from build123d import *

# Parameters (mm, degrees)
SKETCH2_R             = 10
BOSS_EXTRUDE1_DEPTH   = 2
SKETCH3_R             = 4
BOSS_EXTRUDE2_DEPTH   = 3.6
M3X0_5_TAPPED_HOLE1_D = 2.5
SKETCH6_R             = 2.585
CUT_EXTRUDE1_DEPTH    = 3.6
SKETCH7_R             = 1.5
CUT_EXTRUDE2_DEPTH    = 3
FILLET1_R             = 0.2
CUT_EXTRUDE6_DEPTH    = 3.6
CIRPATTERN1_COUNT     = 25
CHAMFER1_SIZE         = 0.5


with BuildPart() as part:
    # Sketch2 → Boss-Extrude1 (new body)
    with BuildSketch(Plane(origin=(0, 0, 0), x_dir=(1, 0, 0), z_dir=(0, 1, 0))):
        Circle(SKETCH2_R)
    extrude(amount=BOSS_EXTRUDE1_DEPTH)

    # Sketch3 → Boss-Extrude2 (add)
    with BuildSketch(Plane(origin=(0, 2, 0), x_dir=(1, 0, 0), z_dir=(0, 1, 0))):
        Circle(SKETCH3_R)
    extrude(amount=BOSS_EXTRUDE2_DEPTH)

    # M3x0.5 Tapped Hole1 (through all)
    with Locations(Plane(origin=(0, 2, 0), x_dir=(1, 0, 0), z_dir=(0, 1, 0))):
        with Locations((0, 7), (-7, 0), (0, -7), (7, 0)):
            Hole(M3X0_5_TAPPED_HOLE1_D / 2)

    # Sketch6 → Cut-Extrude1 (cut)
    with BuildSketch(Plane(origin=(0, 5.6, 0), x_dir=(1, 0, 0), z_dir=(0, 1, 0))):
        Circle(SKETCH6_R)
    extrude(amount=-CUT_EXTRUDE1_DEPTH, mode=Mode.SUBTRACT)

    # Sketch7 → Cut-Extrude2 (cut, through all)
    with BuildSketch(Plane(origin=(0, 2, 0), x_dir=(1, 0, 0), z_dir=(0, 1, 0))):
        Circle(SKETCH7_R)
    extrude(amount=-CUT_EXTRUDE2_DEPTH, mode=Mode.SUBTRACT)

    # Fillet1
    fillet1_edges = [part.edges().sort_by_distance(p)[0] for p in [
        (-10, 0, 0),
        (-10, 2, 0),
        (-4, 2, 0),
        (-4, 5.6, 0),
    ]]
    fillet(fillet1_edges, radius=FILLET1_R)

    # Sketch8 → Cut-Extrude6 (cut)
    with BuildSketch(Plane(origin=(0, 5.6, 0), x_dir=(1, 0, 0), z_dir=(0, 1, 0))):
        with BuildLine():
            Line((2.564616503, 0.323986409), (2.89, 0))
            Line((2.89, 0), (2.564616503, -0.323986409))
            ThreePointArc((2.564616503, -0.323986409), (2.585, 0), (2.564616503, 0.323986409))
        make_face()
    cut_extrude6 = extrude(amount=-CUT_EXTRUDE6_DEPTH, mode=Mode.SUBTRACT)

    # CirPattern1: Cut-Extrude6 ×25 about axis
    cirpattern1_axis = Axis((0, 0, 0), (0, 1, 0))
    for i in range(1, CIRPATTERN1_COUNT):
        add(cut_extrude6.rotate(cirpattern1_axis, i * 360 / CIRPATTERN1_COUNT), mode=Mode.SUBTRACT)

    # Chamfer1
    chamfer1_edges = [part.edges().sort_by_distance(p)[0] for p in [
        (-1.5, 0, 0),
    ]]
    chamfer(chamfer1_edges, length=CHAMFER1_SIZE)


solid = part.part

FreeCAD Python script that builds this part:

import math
import FreeCAD as App
import Part
import Sketcher

V = App.Vector
Q = App.Units.Quantity


def edges_at(feature, points):
    """Names of the edges that pass closest to the given points."""
    edges = feature.Shape.Edges
    near = lambda p: min(range(len(edges)), key=lambda i: edges[i].distToShape(Part.Vertex(*p))[0])
    return sorted({f"Edge{near(p) + 1}" for p in points})

doc = App.newDocument("Part")
body = doc.addObject("PartDesign::Body", "Body")

# Sketch on XZ plane
sketch1 = body.newObject("Sketcher::SketchObject", "Sketch")
sketch1.AttachmentSupport = (doc.getObject("XZ_Plane"), [""])
sketch1.MapMode = "FlatFace"
sketch1.addGeometry(Part.Circle(V(0, 0, 0), V(0, 0, 1), 10), False)
sketch1.addConstraint(Sketcher.Constraint("Coincident", 0, 3, -1, 1))
sketch1.addConstraint(Sketcher.Constraint("Diameter", 0, Q("20 mm")))
pad1 = body.newObject("PartDesign::Pad", "Pad")
pad1.Profile = sketch1
pad1.Length = 2
pad1.Reversed = True

# Sketch on XZ plane
sketch2 = body.newObject("Sketcher::SketchObject", "Sketch001")
sketch2.AttachmentSupport = (doc.getObject("XZ_Plane"), [""])
sketch2.MapMode = "FlatFace"
sketch2.AttachmentOffset = App.Placement(V(0, 0, -2), App.Rotation())
sketch2.addGeometry(Part.Circle(V(0, 0, 0), V(0, 0, 1), 4), False)
sketch2.addConstraint(Sketcher.Constraint("Coincident", 0, 3, -1, 1))
sketch2.addConstraint(Sketcher.Constraint("Diameter", 0, Q("8 mm")))
pad2 = body.newObject("PartDesign::Pad", "Pad001")
pad2.Profile = sketch2
pad2.Length = 3.6
pad2.Reversed = True

# Sketch on XZ plane
sketch3 = body.newObject("Sketcher::SketchObject", "Sketch002")
sketch3.AttachmentSupport = (doc.getObject("XZ_Plane"), [""])
sketch3.MapMode = "FlatFace"
sketch3.AttachmentOffset = App.Placement(V(0, 0, -2), App.Rotation())
sketch3.addGeometry(Part.Circle(V(0, -7, 0), V(0, 0, 1), 1.2), False)
sketch3.addGeometry(Part.Circle(V(-7, 0, 0), V(0, 0, 1), 1.2), False)
sketch3.addGeometry(Part.Circle(V(0, 7, 0), V(0, 0, 1), 1.2), False)
sketch3.addGeometry(Part.Circle(V(7, 0, 0), V(0, 0, 1), 1.2), False)
sketch3.addConstraint(Sketcher.Constraint("Equal", 0, 1))
sketch3.addConstraint(Sketcher.Constraint("Equal", 1, 2))
sketch3.addConstraint(Sketcher.Constraint("Equal", 2, 3))
sketch3.addConstraint(Sketcher.Constraint("Symmetric", 0, 3, 2, 3, -1, 1))
sketch3.addConstraint(Sketcher.Constraint("Symmetric", 1, 3, 3, 3, -1, 1))
sketch3.addConstraint(Sketcher.Constraint("PointOnObject", 0, 3, -2))
sketch3.addConstraint(Sketcher.Constraint("PointOnObject", 1, 3, -1))
sketch3.addConstraint(Sketcher.Constraint("Diameter", 0, Q("2.5 mm")))
sketch3.addConstraint(Sketcher.Constraint("DistanceY", 0, 3, -1, 1, Q("7 mm")))
sketch3.addConstraint(Sketcher.Constraint("DistanceX", 1, 3, -1, 1, Q("7 mm")))
doc.recompute()
hole = body.newObject("PartDesign::Hole", "Hole")
hole.Profile = sketch3
hole.ThreadType = "None"
hole.Diameter = 2.5
hole.DepthType = "ThroughAll"
hole.Reversed = True

# Sketch on XZ plane
sketch4 = body.newObject("Sketcher::SketchObject", "Sketch003")
sketch4.AttachmentSupport = (doc.getObject("XZ_Plane"), [""])
sketch4.MapMode = "FlatFace"
sketch4.AttachmentOffset = App.Placement(V(0, 0, -5.6), App.Rotation())
sketch4.addGeometry(Part.Circle(V(0, 0, 0), V(0, 0, 1), 2.6), False)
sketch4.addConstraint(Sketcher.Constraint("Coincident", 0, 3, -1, 1))
sketch4.addConstraint(Sketcher.Constraint("Diameter", 0, Q("5.17 mm")))
pocket1 = body.newObject("PartDesign::Pocket", "Pocket")
pocket1.Profile = sketch4
pocket1.Length = 3.6
pocket1.Reversed = True

# Sketch on XZ plane
sketch5 = body.newObject("Sketcher::SketchObject", "Sketch004")
sketch5.AttachmentSupport = (doc.getObject("XZ_Plane"), [""])
sketch5.MapMode = "FlatFace"
sketch5.AttachmentOffset = App.Placement(V(0, 0, -2), App.Rotation())
sketch5.addGeometry(Part.Circle(V(0, 0, 0), V(0, 0, 1), 1.5), False)
sketch5.addConstraint(Sketcher.Constraint("Coincident", 0, 3, -1, 1))
sketch5.addConstraint(Sketcher.Constraint("Diameter", 0, Q("3 mm")))
pocket2 = body.newObject("PartDesign::Pocket", "Pocket001")
pocket2.Profile = sketch5
pocket2.Type = "ThroughAll"
pocket2.Reversed = True
doc.recompute()

fillet = body.newObject("PartDesign::Fillet", "Fillet")
fillet.Base = (pocket2, edges_at(pocket2, [
    (-10, 0, 0),
    (-10, 2, 0),
    (-4, 2, 0),
    (-4, 5.6, 0),
]))
fillet.Radius = 0.2

# Sketch on XZ plane
sketch6 = body.newObject("Sketcher::SketchObject", "Sketch005")
sketch6.AttachmentSupport = (doc.getObject("XZ_Plane"), [""])
sketch6.MapMode = "FlatFace"
sketch6.AttachmentOffset = App.Placement(V(0, 0, -5.6), App.Rotation())
sketch6.addGeometry(Part.LineSegment(V(2.89, 0, 0), V(2.56, -0.32, 0)), False)
sketch6.addGeometry(Part.ArcOfCircle(Part.Circle(V(0, 0, 0), V(0, 0, 1), 2.59), math.radians(-7.2), math.radians(7.2)), False)
sketch6.addGeometry(Part.LineSegment(V(2.56, 0.32, 0), V(2.89, 0, 0)), False)
sketch6.addConstraint(Sketcher.Constraint("Coincident", 0, 2, 1, 1))
sketch6.addConstraint(Sketcher.Constraint("Coincident", 1, 2, 2, 1))
sketch6.addConstraint(Sketcher.Constraint("Coincident", 2, 2, 0, 1))
sketch6.addConstraint(Sketcher.Constraint("Coincident", 1, 3, -1, 1))
sketch6.addConstraint(Sketcher.Constraint("PointOnObject", 2, 2, -1))
sketch6.addConstraint(Sketcher.Constraint("Vertical", 0, 2, 1, 2))
sketch6.addConstraint(Sketcher.Constraint("Radius", 1, Q("2.585 mm")))
sketch6.addConstraint(Sketcher.Constraint("DistanceX", -1, 1, 2, 2, Q("2.89 mm")))
sketch6.addConstraint(Sketcher.Constraint("Distance", 0, Q("0.459175 mm")))
pocket3 = body.newObject("PartDesign::Pocket", "Pocket002")
pocket3.Profile = sketch6
pocket3.Length = 3.6
pocket3.Reversed = True
doc.recompute()

polarpattern = body.newObject("PartDesign::PolarPattern", "PolarPattern")
polarpattern.Originals = [pocket3]
polarpattern.Axis = (doc.getObject("Y_Axis"), [""])
polarpattern.Angle = 360
polarpattern.Occurrences = 25
body.Tip = polarpattern
doc.recompute()

chamfer = body.newObject("PartDesign::Chamfer", "Chamfer")
chamfer.Base = (polarpattern, edges_at(polarpattern, [(-1.5, 0, 0)]))
chamfer.Size = 0.5

doc.recompute()
